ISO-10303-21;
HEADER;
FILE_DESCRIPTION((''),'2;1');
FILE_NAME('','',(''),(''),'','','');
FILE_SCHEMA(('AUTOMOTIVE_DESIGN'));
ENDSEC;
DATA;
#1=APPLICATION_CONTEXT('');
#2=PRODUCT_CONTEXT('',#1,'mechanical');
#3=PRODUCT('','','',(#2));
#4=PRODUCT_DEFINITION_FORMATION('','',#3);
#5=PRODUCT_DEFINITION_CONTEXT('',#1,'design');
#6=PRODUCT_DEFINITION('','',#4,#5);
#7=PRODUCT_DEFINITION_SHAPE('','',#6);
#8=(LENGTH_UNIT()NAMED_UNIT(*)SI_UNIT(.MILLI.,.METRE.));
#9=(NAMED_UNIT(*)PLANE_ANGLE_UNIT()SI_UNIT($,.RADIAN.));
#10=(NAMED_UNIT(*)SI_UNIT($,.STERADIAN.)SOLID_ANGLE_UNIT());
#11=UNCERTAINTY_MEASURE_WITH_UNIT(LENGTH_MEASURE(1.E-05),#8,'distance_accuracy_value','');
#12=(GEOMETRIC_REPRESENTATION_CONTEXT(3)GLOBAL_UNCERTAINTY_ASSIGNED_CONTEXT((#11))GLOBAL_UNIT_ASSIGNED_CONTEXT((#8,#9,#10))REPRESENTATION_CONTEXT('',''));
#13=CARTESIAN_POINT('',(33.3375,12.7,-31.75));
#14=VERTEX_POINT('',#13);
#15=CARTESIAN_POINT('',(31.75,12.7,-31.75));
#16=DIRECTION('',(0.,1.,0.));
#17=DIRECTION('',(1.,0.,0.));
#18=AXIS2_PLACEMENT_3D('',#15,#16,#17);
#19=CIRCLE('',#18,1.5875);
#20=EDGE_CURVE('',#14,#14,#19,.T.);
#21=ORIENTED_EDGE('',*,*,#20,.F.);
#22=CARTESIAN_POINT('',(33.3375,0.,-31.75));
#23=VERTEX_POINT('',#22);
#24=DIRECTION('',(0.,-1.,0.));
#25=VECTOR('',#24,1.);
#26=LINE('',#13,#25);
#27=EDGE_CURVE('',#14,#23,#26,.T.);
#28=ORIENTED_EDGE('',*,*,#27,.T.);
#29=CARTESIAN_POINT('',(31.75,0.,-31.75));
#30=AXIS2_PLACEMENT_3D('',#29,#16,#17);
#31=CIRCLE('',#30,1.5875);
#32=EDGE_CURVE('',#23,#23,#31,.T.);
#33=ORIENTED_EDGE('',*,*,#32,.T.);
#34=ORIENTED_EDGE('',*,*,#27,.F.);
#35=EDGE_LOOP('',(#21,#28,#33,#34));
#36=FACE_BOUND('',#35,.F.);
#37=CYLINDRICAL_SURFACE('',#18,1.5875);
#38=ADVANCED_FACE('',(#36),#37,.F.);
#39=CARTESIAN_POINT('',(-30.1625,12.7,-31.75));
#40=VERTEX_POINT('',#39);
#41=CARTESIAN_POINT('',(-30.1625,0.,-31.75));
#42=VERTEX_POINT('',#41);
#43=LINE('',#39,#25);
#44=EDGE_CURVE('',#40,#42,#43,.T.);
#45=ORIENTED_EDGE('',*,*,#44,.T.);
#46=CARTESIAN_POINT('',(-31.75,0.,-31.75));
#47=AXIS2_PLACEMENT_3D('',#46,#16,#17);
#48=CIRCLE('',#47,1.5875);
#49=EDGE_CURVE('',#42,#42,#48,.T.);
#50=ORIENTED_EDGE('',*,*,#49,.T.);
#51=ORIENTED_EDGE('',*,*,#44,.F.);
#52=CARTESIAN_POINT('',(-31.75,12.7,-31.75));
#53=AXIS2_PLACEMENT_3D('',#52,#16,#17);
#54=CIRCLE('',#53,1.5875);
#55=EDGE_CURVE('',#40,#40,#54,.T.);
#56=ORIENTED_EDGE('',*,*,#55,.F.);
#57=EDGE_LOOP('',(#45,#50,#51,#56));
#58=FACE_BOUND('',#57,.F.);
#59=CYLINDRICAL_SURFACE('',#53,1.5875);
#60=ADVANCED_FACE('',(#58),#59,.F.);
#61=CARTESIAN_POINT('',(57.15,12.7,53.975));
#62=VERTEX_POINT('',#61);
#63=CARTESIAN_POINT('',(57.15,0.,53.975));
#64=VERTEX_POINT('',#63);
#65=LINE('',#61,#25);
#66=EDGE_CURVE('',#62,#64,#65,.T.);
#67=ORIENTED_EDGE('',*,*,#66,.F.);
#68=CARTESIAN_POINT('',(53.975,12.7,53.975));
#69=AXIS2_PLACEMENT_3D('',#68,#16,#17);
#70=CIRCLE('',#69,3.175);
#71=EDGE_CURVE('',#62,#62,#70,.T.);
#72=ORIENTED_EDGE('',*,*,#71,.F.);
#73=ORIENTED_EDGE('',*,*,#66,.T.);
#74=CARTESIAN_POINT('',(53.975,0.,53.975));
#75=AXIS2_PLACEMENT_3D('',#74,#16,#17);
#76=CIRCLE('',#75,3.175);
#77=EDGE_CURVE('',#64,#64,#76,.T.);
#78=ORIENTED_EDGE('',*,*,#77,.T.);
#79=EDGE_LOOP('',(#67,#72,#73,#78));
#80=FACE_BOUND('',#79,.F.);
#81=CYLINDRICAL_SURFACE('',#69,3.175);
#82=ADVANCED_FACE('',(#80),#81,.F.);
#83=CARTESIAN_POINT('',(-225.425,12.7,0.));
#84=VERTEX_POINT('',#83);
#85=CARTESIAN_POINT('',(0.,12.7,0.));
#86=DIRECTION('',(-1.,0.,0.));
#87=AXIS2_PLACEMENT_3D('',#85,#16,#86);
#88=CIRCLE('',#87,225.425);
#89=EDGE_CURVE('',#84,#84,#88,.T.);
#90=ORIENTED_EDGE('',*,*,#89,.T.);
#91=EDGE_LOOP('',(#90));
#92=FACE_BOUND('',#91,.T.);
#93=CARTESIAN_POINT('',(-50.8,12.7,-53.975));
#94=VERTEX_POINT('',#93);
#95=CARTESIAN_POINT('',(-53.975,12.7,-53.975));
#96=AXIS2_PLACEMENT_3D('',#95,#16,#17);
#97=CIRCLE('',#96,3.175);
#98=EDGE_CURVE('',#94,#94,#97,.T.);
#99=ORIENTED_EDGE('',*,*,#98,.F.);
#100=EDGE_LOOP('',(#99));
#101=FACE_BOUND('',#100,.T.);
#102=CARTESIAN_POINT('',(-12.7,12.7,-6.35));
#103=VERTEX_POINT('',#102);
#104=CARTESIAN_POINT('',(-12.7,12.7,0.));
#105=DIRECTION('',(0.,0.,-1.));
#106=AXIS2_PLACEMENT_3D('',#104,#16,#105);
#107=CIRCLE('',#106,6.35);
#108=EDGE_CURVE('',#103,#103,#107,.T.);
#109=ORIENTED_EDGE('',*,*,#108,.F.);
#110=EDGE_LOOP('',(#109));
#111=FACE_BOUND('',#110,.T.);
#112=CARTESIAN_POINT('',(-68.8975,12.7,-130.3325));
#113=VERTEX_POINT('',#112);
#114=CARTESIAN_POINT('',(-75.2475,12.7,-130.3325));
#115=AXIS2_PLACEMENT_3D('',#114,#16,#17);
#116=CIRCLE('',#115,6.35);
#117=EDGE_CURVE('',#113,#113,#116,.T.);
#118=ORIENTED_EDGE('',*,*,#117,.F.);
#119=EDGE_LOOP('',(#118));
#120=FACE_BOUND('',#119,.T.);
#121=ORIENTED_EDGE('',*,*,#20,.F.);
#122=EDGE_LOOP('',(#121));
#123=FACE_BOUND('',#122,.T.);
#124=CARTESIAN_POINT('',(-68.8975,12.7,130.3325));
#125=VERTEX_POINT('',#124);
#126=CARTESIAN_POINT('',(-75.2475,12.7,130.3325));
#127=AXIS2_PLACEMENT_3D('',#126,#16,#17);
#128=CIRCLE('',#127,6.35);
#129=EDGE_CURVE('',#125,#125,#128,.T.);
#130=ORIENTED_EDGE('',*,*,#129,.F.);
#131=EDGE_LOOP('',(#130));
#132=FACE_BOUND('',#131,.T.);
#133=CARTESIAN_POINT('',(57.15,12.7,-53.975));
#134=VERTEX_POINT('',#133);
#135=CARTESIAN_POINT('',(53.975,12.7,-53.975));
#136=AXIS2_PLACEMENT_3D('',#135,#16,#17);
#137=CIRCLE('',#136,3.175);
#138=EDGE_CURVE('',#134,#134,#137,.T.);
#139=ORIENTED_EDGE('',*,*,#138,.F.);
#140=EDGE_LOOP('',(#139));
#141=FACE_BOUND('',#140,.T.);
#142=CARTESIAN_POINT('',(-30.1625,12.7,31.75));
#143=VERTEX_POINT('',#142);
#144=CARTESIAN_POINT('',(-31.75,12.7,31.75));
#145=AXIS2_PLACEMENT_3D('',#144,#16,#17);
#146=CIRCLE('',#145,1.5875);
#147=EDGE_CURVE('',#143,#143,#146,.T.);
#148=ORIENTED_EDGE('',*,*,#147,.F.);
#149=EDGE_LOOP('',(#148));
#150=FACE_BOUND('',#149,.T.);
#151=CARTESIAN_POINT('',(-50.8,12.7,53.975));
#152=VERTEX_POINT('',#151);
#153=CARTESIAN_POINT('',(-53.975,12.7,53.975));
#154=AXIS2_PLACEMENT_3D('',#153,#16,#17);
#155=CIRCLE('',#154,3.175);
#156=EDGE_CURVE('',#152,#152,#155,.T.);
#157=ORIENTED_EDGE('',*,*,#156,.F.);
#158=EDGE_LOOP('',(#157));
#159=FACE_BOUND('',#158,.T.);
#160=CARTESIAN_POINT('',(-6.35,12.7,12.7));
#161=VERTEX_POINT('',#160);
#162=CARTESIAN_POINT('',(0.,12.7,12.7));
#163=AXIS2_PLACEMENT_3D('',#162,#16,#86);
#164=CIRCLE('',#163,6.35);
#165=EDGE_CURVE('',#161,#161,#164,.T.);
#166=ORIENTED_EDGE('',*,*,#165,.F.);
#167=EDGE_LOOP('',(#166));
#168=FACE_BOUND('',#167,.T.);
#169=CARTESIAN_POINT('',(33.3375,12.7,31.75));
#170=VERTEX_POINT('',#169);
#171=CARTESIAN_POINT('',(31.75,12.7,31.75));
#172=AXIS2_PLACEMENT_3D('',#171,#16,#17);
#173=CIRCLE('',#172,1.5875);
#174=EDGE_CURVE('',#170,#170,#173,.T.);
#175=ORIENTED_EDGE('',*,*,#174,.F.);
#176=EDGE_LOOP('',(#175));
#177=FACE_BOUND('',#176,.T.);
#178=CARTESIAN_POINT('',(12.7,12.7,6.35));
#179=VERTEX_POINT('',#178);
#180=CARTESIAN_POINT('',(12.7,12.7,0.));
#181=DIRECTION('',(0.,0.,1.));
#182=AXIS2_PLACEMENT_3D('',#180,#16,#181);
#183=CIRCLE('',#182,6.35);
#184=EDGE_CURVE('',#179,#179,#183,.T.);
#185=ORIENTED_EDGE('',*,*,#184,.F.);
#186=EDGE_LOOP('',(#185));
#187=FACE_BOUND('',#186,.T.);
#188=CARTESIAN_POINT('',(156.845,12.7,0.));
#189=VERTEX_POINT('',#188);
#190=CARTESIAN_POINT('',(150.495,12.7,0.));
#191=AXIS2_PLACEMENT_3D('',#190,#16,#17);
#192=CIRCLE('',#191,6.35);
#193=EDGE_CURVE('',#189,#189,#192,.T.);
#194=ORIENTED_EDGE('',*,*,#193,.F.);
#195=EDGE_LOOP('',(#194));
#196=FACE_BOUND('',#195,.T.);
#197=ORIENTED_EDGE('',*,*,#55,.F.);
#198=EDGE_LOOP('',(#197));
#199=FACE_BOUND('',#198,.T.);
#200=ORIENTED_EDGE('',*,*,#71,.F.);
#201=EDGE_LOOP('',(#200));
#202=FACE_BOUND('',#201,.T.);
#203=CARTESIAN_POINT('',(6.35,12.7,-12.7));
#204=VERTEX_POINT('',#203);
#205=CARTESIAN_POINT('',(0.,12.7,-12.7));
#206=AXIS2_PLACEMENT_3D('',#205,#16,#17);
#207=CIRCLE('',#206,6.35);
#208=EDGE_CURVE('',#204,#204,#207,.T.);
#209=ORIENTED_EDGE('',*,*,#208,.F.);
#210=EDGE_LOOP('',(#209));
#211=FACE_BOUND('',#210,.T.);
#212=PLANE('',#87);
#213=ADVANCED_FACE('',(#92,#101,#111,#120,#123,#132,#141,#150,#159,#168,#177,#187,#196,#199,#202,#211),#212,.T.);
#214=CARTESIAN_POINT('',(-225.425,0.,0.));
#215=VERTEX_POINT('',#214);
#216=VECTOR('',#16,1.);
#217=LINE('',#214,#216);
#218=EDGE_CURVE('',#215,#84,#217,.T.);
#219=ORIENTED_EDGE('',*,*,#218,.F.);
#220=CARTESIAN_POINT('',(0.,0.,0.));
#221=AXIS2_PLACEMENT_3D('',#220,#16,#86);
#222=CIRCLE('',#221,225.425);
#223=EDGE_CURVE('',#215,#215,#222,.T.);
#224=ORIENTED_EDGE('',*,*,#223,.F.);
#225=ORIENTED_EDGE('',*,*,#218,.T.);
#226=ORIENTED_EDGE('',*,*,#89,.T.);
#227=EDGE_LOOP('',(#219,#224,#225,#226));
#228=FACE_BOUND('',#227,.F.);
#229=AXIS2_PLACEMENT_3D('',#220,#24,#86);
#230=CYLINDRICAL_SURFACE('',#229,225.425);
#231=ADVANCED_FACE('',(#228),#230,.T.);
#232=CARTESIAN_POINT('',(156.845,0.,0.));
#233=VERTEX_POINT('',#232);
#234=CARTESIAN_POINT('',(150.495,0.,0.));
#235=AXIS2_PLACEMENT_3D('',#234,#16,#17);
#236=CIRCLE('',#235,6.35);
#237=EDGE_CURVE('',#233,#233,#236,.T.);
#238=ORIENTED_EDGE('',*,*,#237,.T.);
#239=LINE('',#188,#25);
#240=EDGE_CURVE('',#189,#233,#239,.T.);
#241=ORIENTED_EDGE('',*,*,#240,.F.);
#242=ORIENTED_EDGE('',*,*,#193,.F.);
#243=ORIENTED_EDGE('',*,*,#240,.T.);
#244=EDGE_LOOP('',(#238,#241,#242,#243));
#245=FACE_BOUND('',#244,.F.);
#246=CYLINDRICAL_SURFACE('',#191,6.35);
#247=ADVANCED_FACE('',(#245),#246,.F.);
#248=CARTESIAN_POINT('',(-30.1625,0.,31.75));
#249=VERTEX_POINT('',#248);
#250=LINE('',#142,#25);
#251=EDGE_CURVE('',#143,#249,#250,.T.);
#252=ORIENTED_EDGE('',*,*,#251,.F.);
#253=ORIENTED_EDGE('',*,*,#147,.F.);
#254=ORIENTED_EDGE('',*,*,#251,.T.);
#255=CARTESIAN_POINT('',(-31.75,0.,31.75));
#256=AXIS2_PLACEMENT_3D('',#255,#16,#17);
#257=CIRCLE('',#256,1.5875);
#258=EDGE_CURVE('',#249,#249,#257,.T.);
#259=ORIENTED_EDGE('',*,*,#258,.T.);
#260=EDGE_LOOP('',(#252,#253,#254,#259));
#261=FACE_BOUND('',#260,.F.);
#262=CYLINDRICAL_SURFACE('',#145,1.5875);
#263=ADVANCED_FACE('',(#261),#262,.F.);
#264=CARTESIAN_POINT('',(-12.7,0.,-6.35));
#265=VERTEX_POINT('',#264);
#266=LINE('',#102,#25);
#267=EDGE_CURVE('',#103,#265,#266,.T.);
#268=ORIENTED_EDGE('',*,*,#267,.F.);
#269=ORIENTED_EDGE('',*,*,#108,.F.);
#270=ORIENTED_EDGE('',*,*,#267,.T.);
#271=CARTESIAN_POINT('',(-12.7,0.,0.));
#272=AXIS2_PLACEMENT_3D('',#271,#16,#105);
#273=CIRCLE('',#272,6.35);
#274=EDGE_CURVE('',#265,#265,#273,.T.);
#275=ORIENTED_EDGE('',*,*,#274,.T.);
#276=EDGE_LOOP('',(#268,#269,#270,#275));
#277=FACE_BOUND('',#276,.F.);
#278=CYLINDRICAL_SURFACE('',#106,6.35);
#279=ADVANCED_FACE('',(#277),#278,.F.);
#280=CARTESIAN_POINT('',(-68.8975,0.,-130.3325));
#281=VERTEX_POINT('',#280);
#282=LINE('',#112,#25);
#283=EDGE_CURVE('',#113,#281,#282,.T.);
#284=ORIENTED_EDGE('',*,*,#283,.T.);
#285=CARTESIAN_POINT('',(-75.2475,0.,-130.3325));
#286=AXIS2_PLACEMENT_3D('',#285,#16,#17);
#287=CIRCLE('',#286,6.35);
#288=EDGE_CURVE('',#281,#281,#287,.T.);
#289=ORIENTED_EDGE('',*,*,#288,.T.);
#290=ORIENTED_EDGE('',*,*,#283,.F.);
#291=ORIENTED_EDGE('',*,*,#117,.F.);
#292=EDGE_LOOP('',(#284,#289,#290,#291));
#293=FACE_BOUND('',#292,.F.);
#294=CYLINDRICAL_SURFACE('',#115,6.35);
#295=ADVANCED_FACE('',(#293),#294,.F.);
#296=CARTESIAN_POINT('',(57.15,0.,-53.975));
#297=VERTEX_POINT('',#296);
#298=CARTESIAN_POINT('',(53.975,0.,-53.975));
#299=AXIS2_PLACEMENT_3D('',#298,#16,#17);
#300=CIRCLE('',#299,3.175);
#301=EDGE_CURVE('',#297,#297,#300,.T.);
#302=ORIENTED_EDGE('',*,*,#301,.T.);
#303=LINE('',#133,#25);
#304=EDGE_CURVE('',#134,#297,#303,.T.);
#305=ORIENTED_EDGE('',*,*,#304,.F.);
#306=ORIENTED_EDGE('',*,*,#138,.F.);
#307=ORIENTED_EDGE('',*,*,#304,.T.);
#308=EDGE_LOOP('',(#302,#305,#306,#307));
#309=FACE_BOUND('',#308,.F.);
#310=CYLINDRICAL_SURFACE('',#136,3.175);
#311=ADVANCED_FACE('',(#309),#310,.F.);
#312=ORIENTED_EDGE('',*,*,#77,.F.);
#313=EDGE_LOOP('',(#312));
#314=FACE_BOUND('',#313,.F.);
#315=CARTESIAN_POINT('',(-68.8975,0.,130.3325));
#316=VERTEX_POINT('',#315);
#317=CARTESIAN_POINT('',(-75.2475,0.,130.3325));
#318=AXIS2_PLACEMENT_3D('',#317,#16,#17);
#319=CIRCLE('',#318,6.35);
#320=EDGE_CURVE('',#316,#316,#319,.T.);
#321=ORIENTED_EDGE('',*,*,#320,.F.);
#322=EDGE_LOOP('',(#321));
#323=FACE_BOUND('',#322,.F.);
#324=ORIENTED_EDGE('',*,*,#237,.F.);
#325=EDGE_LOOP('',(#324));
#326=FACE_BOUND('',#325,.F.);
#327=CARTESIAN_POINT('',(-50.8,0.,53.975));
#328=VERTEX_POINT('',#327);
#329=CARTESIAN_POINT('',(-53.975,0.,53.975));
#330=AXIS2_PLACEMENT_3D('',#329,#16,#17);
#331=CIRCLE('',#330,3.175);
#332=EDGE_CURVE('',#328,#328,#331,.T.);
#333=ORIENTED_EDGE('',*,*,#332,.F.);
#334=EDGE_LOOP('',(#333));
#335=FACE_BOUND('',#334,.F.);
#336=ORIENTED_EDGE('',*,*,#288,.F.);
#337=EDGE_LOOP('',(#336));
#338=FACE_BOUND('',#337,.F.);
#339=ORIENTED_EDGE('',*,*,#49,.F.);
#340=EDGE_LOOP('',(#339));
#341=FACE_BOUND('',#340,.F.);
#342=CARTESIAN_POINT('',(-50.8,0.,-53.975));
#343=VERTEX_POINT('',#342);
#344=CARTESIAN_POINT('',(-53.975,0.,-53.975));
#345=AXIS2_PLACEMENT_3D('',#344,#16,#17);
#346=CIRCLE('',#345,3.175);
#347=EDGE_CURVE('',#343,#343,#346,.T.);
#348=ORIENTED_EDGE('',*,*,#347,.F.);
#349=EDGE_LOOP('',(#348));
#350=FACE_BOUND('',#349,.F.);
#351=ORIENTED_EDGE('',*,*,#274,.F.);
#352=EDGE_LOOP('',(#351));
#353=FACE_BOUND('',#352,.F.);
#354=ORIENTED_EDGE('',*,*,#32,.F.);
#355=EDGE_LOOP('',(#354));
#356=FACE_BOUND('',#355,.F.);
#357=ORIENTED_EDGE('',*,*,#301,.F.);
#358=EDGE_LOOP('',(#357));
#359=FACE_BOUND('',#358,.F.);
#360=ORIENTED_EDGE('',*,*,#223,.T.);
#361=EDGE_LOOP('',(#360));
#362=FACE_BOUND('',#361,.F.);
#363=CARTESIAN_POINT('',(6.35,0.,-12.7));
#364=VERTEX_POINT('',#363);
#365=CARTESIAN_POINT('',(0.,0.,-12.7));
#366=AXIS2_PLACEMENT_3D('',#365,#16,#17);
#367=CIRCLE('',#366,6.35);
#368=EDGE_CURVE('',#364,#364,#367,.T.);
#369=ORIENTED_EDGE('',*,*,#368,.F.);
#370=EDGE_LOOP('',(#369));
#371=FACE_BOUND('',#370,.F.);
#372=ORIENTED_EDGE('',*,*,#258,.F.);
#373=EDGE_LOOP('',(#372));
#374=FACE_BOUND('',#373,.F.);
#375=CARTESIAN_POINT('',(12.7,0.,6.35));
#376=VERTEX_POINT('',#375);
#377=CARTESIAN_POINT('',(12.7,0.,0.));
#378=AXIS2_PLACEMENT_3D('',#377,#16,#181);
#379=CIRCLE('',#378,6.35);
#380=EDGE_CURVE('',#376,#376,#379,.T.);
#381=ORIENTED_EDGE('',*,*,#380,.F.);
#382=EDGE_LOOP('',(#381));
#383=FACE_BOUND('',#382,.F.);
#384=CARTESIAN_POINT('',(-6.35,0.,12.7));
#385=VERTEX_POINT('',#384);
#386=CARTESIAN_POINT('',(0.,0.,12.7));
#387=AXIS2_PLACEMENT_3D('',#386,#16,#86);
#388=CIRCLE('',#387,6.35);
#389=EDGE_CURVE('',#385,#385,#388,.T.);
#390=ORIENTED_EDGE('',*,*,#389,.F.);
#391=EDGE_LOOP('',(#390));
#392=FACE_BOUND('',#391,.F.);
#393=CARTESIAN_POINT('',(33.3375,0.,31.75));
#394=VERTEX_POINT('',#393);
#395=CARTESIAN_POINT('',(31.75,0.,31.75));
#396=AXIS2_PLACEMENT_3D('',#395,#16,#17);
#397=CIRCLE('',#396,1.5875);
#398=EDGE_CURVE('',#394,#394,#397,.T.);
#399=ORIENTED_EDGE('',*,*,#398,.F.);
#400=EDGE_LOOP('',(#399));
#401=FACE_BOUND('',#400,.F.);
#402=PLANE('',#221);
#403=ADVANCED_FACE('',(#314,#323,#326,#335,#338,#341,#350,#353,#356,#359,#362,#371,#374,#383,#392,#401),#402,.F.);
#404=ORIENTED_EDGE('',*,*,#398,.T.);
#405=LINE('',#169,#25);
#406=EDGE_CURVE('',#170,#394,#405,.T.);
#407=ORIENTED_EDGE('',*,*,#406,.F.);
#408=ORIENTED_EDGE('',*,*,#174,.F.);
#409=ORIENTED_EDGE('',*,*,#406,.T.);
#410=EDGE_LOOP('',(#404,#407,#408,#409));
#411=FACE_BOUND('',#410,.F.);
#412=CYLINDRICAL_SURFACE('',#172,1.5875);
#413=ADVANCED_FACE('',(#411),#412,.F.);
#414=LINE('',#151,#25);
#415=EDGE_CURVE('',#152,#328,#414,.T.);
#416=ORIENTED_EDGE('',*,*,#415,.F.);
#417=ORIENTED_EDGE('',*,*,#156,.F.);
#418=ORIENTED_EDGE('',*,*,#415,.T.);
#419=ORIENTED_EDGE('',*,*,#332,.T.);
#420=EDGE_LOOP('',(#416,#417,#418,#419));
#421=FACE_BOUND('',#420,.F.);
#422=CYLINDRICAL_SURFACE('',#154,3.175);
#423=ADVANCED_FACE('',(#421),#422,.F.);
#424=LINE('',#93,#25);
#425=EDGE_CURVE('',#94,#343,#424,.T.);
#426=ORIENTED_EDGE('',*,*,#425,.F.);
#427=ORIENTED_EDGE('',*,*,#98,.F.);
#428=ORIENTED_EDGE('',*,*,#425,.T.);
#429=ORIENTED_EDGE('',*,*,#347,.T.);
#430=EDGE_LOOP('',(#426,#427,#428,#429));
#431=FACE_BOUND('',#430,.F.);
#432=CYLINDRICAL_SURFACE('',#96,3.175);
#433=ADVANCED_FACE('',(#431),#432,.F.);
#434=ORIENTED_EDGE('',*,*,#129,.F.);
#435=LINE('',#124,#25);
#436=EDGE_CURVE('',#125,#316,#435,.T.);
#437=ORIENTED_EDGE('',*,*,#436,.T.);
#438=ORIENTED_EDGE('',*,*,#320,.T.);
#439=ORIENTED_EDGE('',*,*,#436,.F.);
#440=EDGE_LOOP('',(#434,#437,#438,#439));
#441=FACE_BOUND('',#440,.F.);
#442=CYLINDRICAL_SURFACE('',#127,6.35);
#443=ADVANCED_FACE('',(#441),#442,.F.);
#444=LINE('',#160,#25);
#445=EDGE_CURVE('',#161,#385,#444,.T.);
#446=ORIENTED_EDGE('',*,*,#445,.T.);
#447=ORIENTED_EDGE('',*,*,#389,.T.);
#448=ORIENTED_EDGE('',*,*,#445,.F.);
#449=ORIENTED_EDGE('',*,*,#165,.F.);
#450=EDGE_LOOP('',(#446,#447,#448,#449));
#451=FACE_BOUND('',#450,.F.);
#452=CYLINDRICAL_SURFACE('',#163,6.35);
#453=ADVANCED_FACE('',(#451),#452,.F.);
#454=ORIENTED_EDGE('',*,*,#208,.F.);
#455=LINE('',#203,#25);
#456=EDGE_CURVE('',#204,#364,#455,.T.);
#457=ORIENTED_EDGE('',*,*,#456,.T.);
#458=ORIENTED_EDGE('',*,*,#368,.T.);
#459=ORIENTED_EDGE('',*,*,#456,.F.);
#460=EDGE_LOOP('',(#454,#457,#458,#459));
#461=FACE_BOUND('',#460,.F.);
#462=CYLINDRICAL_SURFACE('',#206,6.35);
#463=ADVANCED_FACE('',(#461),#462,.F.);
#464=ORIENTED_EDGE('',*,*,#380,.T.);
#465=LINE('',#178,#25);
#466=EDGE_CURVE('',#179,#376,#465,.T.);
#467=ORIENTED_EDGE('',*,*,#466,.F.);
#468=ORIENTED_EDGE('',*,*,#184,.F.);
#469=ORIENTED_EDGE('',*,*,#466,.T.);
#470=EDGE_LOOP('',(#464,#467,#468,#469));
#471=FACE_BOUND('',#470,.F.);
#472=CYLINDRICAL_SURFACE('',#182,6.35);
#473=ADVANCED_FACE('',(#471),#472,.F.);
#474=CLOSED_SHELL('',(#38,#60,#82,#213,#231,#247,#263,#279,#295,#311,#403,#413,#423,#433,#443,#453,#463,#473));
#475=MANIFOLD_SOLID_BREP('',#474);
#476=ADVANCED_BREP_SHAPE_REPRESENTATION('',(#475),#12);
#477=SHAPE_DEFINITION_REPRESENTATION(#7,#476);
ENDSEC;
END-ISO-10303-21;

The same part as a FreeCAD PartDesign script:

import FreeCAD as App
import Part
import Sketcher
from FreeCAD import Vector
Q = App.Units.Quantity

doc = App.newDocument("Part")
body = doc.addObject("PartDesign::Body", "Body")

sketch1 = doc.addObject("Sketcher::SketchObject", "Sketch")
body.addObject(sketch1)
sketch1.AttachmentSupport = (doc.XZ_Plane, [""])
sketch1.MapMode = "FlatFace"
sketch1.addGeometry(Part.Circle(Vector(0, 0, 0), Vector(0, 0, 1), 225.425), False)
sketch1.addConstraint([
    Sketcher.Constraint("Coincident", 0, 3, -1, 1),
    Sketcher.Constraint("Diameter", 0, Q("17.75 in")),
])
pad1 = doc.addObject("PartDesign::Pad", "Pad")
body.addObject(pad1)
pad1.Profile = sketch1
pad1.Length = Q("0.5 in")
pad1.Reversed = True

sketch2 = doc.addObject("Sketcher::SketchObject", "Sketch001")
body.addObject(sketch2)
sketch2.AttachmentSupport = (doc.XZ_Plane, [""])
sketch2.MapMode = "FlatFace"
sketch2.AttachmentOffset = App.Placement(Vector(0, 0, -0.5 * 25.4), App.Rotation())
sketch2.addGeometry(Part.Circle(Vector(0, -12.7, 0), Vector(0, 0, 1), 6.35), False)
sketch2.addConstraint([
    Sketcher.Constraint("PointOnObject", 0, 3, -2),
    Sketcher.Constraint("Diameter", 0, Q("0.5 in")),
    Sketcher.Constraint("DistanceY", 0, 3, -1, 1, Q("0.5 in")),
])
pocket1 = doc.addObject("PartDesign::Pocket", "Pocket")
body.addObject(pocket1)
pocket1.Profile = sketch2
pocket1.Length = Q("0.5 in")
pocket1.Reversed = True
doc.recompute()

polarpattern = doc.addObject("PartDesign::PolarPattern", "PolarPattern")
body.addObject(polarpattern)
polarpattern.Originals = [pocket1]
polarpattern.Axis = (doc.Y_Axis, [""])
polarpattern.Angle = 360
polarpattern.Occurrences = 4
body.Tip = polarpattern

sketch3 = doc.addObject("Sketcher::SketchObject", "Sketch002")
body.addObject(sketch3)
sketch3.AttachmentSupport = (doc.XZ_Plane, [""])
sketch3.MapMode = "FlatFace"
sketch3.AttachmentOffset = App.Placement(Vector(0, 0, -0.5 * 25.4), App.Rotation())
sketch3.addGeometry([
    Part.Circle(Vector(-31.75, -31.75, 0), Vector(0, 0, 1), 1.5875),
    Part.Circle(Vector(31.75, -31.75, 0), Vector(0, 0, 1), 1.5875),
    Part.Circle(Vector(-31.75, 31.75, 0), Vector(0, 0, 1), 1.5875),
    Part.Circle(Vector(31.75, 31.75, 0), Vector(0, 0, 1), 1.5875),
    Part.Circle(Vector(53.975, -53.975, 0), Vector(0, 0, 1), 3.175),
    Part.Circle(Vector(-53.975, -53.975, 0), Vector(0, 0, 1), 3.175),
    Part.Circle(Vector(53.975, 53.975, 0), Vector(0, 0, 1), 3.175),
    Part.Circle(Vector(-53.975, 53.975, 0), Vector(0, 0, 1), 3.175),
    Part.Circle(Vector(150.495, 0, 0), Vector(0, 0, 1), 6.35),
    Part.Circle(Vector(-75.2475, -130.3325, 0), Vector(0, 0, 1), 6.35),
    Part.Circle(Vector(-75.2475, 130.3325, 0), Vector(0, 0, 1), 6.35),
], False)
sketch3.addConstraint([
    Sketcher.Constraint("Equal", 0, 1),
    Sketcher.Constraint("Equal", 1, 2),
    Sketcher.Constraint("Equal", 2, 3),
    Sketcher.Constraint("Equal", 4, 5),
    Sketcher.Constraint("Equal", 5, 6),
    Sketcher.Constraint("Equal", 6, 7),
    Sketcher.Constraint("Equal", 8, 9),
    Sketcher.Constraint("Equal", 9, 10),
    Sketcher.Constraint("Symmetric", 1, 3, 2, 3, -1, 1),
    Sketcher.Constraint("Symmetric", 0, 3, 3, 3, -1, 1),
    Sketcher.Constraint("Symmetric", 5, 3, 6, 3, -1, 1),
    Sketcher.Constraint("Symmetric", 4, 3, 7, 3, -1, 1),
    Sketcher.Constraint("Symmetric", 0, 3, 1, 3, -2),
    Sketcher.Constraint("Symmetric", 4, 3, 5, 3, -2),
    Sketcher.Constraint("Symmetric", 9, 3, 10, 3, -1),
    Sketcher.Constraint("PointOnObject", 8, 3, -1),
    Sketcher.Constraint("Diameter", 8, Q("0.5 in")),
    Sketcher.Constraint("Diameter", 4, Q("0.25 in")),
    Sketcher.Constraint("Diameter", 0, Q("0.125 in")),
    Sketcher.Constraint("DistanceX", 0, 3, 1, 3, Q("2.5 in")),
    Sketcher.Constraint("DistanceY", 0, 3, 2, 3, Q("2.5 in")),
    Sketcher.Constraint("DistanceX", 5, 3, 4, 3, Q("4.25 in")),
    Sketcher.Constraint("DistanceY", 4, 3, 6, 3, Q("4.25 in")),
    Sketcher.Constraint("DistanceX", -1, 1, 8, 3, Q("5.925 in")),
    Sketcher.Constraint("DistanceX", 9, 3, -1, 1, Q("2.9625 in")),
    Sketcher.Constraint("DistanceY", 9, 3, -1, 1, Q("5.1312 in")),
])
pocket2 = doc.addObject("PartDesign::Pocket", "Pocket001")
body.addObject(pocket2)
pocket2.Profile = sketch3
pocket2.Length = Q("0.5 in")
pocket2.Reversed = True

doc.recompute()
